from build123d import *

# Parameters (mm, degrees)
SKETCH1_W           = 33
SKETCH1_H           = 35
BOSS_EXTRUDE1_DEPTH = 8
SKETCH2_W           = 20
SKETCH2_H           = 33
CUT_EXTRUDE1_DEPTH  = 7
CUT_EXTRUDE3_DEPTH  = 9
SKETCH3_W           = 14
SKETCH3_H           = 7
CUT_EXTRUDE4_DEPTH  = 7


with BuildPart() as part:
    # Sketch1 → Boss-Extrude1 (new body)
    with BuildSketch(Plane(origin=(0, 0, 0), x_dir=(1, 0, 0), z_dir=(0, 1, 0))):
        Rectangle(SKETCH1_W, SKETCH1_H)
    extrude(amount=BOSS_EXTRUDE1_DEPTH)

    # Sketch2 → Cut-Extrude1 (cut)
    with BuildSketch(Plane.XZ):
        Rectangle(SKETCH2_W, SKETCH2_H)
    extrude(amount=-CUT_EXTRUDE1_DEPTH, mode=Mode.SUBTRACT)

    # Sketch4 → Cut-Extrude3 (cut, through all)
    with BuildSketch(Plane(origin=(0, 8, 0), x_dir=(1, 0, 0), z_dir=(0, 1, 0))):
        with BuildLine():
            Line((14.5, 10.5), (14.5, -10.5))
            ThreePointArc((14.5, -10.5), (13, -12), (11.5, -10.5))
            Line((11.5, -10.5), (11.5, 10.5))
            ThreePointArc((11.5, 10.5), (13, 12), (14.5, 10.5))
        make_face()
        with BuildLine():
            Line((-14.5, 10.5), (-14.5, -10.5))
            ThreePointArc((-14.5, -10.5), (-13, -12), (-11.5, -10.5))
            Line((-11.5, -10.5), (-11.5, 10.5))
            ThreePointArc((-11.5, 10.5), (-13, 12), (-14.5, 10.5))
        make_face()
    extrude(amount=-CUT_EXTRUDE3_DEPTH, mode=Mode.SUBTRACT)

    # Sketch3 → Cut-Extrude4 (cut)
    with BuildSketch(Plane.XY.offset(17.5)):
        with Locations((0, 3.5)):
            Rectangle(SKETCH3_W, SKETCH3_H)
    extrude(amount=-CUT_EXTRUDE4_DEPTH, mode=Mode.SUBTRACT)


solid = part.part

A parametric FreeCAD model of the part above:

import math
import FreeCAD as App
import Part
import Sketcher
Q = App.Units.Quantity

doc = App.newDocument("Part")
body = doc.addObject("PartDesign::Body", "Body")

sketch1 = body.newObject("Sketcher::SketchObject", "Sketch")
sketch1.AttachmentSupport = (doc.getObject("XZ_Plane"), [""])
sketch1.MapMode = "FlatFace"
sketch1.addGeometry([
    Part.LineSegment(App.Vector(-16, -18, 0), App.Vector(-16, 18, 0)),
    Part.LineSegment(App.Vector(-16, 18, 0), App.Vector(16, 18, 0)),
    Part.LineSegment(App.Vector(16, 18, 0), App.Vector(16, -18, 0)),
    Part.LineSegment(App.Vector(16, -18, 0), App.Vector(-16, -18, 0)),
], False)
sketch1.addConstraint([
    Sketcher.Constraint("Coincident", 0, 2, 1, 1),
    Sketcher.Constraint("Coincident", 1, 2, 2, 1),
    Sketcher.Constraint("Coincident", 2, 2, 3, 1),
    Sketcher.Constraint("Coincident", 3, 2, 0, 1),
    Sketcher.Constraint("Vertical", 0),
    Sketcher.Constraint("Horizontal", 1),
    Sketcher.Constraint("Vertical", 2),
    Sketcher.Constraint("Horizontal", 3),
    Sketcher.Constraint("Symmetric", 0, 2, 2, 2, -1, 1),
    Sketcher.Constraint("DistanceX", 1, 1, 1, 2, Q("33 mm")),
    Sketcher.Constraint("DistanceY", 0, 1, 0, 2, Q("35 mm")),
])
pad1 = body.newObject("PartDesign::Pad", "Pad")
pad1.Profile = sketch1
pad1.Length = 8
pad1.Reversed = True

sketch2 = body.newObject("Sketcher::SketchObject", "Sketch001")
sketch2.AttachmentSupport = (doc.getObject("XZ_Plane"), [""])
sketch2.MapMode = "FlatFace"
sketch2.addGeometry([
    Part.LineSegment(App.Vector(-10, 16, 0), App.Vector(-10, -16, 0)),
    Part.LineSegment(App.Vector(-10, -16, 0), App.Vector(10, -16, 0)),
    Part.LineSegment(App.Vector(10, -16, 0), App.Vector(10, 16, 0)),
    Part.LineSegment(App.Vector(10, 16, 0), App.Vector(-10, 16, 0)),
], False)
sketch2.addConstraint([
    Sketcher.Constraint("Coincident", 0, 2, 1, 1),
    Sketcher.Constraint("Coincident", 1, 2, 2, 1),
    Sketcher.Constraint("Coincident", 2, 2, 3, 1),
    Sketcher.Constraint("Coincident", 3, 2, 0, 1),
    Sketcher.Constraint("Vertical", 0),
    Sketcher.Constraint("Horizontal", 1),
    Sketcher.Constraint("Vertical", 2),
    Sketcher.Constraint("Horizontal", 3),
    Sketcher.Constraint("Symmetric", 0, 2, 2, 2, -1, 1),
    Sketcher.Constraint("DistanceX", 1, 1, 1, 2, Q("20 mm")),
    Sketcher.Constraint("DistanceY", 0, 2, 0, 1, Q("33 mm")),
])
pocket1 = body.newObject("PartDesign::Pocket", "Pocket")
pocket1.Profile = sketch2
pocket1.Length = 7

sketch3 = body.newObject("Sketcher::SketchObject", "Sketch002")
sketch3.AttachmentSupport = (doc.getObject("XZ_Plane"), [""])
sketch3.MapMode = "FlatFace"
sketch3.AttachmentOffset = App.Placement(App.Vector(0, 0, -8), App.Rotation())
sketch3.addGeometry([
    Part.LineSegment(App.Vector(14.5, 10.5, 0), App.Vector(14.5, -10.5, 0)),
    Part.ArcOfCircle(Part.Circle(App.Vector(13, -10.5, 0), App.Vector(0, 0, 1), 1.5), math.radians(180), math.radians(360)),
    Part.LineSegment(App.Vector(11.5, -10.5, 0), App.Vector(11.5, 10.5, 0)),
    Part.ArcOfCircle(Part.Circle(App.Vector(13, 10.5, 0), App.Vector(0, 0, 1), 1.5), math.radians(0), math.radians(180)),
    Part.LineSegment(App.Vector(-14.5, -10.5, 0), App.Vector(-14.5, 10.5, 0)),
    Part.ArcOfCircle(Part.Circle(App.Vector(-13, 10.5, 0), App.Vector(0, 0, 1), 1.5), math.radians(0), math.radians(180)),
    Part.LineSegment(App.Vector(-11.5, 10.5, 0), App.Vector(-11.5, -10.5, 0)),
    Part.ArcOfCircle(Part.Circle(App.Vector(-13, -10.5, 0), App.Vector(0, 0, 1), 1.5), math.radians(180), math.radians(360)),
], False)
sketch3.addConstraint([
    Sketcher.Constraint("Tangent", 0, 2, 1, 2),
    Sketcher.Constraint("Tangent", 1, 1, 2, 1),
    Sketcher.Constraint("Tangent", 2, 2, 3, 2),
    Sketcher.Constraint("Tangent", 3, 1, 0, 1),
    Sketcher.Constraint("Tangent", 4, 2, 5, 2),
    Sketcher.Constraint("Tangent", 5, 1, 6, 1),
    Sketcher.Constraint("Tangent", 6, 2, 7, 2),
    Sketcher.Constraint("Tangent", 7, 1, 4, 1),
    Sketcher.Constraint("Vertical", 0),
    Sketcher.Constraint("Vertical", 2),
    Sketcher.Constraint("Vertical", 4),
    Sketcher.Constraint("Vertical", 6),
    Sketcher.Constraint("Equal", 3, 5),
    Sketcher.Constraint("Symmetric", 1, 3, 5, 3, -1, 1),
    Sketcher.Constraint("Horizontal", 3, 3, 5, 3),
    Sketcher.Constraint("Horizontal", 1, 3, 7, 3),
    Sketcher.Constraint("Radius", 1, Q("1.5 mm")),
    Sketcher.Constraint("DistanceY", 0, 2, 0, 1, Q("21 mm")),
    Sketcher.Constraint("DistanceX", -1, 1, 1, 3, Q("13 mm")),
])
pocket2 = body.newObject("PartDesign::Pocket", "Pocket001")
pocket2.Profile = sketch3
pocket2.Type = "ThroughAll"
pocket2.Reversed = True

sketch4 = body.newObject("Sketcher::SketchObject", "Sketch003")
sketch4.AttachmentSupport = (doc.getObject("XY_Plane"), [""])
sketch4.MapMode = "FlatFace"
sketch4.AttachmentOffset = App.Placement(App.Vector(0, 0, 17.5), App.Rotation())
sketch4.addGeometry([
    Part.LineSegment(App.Vector(-7, 7, 0), App.Vector(-7, 0, 0)),
    Part.LineSegment(App.Vector(-7, 0, 0), App.Vector(7, 0, 0)),
    Part.LineSegment(App.Vector(7, 0, 0), App.Vector(7, 7, 0)),
    Part.LineSegment(App.Vector(7, 7, 0), App.Vector(-7, 7, 0)),
], False)
sketch4.addConstraint([
    Sketcher.Constraint("Coincident", 0, 2, 1, 1),
    Sketcher.Constraint("Coincident", 1, 2, 2, 1),
    Sketcher.Constraint("Coincident", 2, 2, 3, 1),
    Sketcher.Constraint("Coincident", 3, 2, 0, 1),
    Sketcher.Constraint("Vertical", 0),
    Sketcher.Constraint("Horizontal", 1),
    Sketcher.Constraint("Vertical", 2),
    Sketcher.Constraint("Horizontal", 3),
    Sketcher.Constraint("Symmetric", 0, 2, 1, 2, -1, 1),
    Sketcher.Constraint("DistanceX", 1, 1, 1, 2, Q("14 mm")),
    Sketcher.Constraint("DistanceY", 0, 2, 0, 1, Q("7 mm")),
])
pocket3 = body.newObject("PartDesign::Pocket", "Pocket002")
pocket3.Profile = sketch4
pocket3.Length = 7

doc.recompute()
